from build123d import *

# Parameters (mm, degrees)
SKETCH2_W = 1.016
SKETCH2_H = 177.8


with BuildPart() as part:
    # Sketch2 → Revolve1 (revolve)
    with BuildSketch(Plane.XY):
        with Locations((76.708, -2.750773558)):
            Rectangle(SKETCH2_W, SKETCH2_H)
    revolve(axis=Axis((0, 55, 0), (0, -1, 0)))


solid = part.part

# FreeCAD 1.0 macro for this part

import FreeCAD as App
import Part
import Sketcher

V = App.Vector
Q = App.Units.Quantity


def add_polygon(sketch, points):
    """Adds a closed chain of lines whose ends are joined by coincident constraints."""
    first, n = sketch.GeometryCount, len(points)
    for a, b in zip(points, points[1:] + points[:1]):
        sketch.addGeometry(Part.LineSegment(App.Vector(*a, 0), App.Vector(*b, 0)), False)
    for i in range(n):
        sketch.addConstraint(Sketcher.Constraint("Coincident", first + i, 2, first + (i + 1) % n, 1))

doc = App.newDocument("Part")
body = doc.addObject("PartDesign::Body", "Body")

# Sketch on XY plane
sketch1 = body.newObject("Sketcher::SketchObject", "Sketch")
sketch1.AttachmentSupport = (doc.getObject("XY_Plane"), [""])
sketch1.MapMode = "FlatFace"
add_polygon(sketch1, [(76.2, 86.1), (76.2, -91.7), (77.2, -91.7), (77.2, 86.1)])  # lines 0-3
sketch1.addConstraint([
    Sketcher.Constraint("Vertical", 0),
    Sketcher.Constraint("Horizontal", 1),
    Sketcher.Constraint("Vertical", 2),
    Sketcher.Constraint("Horizontal", 3),
    Sketcher.Constraint("DistanceY", 0, 2, 0, 1, Q("7 in")),
    Sketcher.Constraint("DistanceX", -1, 1, 0, 2, Q("3 in")),
    Sketcher.Constraint("DistanceX", 1, 1, 1, 2, Q("0.04 in")),
    Sketcher.Constraint("DistanceY", 0, 2, -1, 1, Q("91.650774 mm")),
])
revolution = body.newObject("PartDesign::Revolution", "Revolution")
revolution.Profile = sketch1
revolution.ReferenceAxis = (sketch1, ["V_Axis"])
revolution.Angle = 360

doc.recompute()
